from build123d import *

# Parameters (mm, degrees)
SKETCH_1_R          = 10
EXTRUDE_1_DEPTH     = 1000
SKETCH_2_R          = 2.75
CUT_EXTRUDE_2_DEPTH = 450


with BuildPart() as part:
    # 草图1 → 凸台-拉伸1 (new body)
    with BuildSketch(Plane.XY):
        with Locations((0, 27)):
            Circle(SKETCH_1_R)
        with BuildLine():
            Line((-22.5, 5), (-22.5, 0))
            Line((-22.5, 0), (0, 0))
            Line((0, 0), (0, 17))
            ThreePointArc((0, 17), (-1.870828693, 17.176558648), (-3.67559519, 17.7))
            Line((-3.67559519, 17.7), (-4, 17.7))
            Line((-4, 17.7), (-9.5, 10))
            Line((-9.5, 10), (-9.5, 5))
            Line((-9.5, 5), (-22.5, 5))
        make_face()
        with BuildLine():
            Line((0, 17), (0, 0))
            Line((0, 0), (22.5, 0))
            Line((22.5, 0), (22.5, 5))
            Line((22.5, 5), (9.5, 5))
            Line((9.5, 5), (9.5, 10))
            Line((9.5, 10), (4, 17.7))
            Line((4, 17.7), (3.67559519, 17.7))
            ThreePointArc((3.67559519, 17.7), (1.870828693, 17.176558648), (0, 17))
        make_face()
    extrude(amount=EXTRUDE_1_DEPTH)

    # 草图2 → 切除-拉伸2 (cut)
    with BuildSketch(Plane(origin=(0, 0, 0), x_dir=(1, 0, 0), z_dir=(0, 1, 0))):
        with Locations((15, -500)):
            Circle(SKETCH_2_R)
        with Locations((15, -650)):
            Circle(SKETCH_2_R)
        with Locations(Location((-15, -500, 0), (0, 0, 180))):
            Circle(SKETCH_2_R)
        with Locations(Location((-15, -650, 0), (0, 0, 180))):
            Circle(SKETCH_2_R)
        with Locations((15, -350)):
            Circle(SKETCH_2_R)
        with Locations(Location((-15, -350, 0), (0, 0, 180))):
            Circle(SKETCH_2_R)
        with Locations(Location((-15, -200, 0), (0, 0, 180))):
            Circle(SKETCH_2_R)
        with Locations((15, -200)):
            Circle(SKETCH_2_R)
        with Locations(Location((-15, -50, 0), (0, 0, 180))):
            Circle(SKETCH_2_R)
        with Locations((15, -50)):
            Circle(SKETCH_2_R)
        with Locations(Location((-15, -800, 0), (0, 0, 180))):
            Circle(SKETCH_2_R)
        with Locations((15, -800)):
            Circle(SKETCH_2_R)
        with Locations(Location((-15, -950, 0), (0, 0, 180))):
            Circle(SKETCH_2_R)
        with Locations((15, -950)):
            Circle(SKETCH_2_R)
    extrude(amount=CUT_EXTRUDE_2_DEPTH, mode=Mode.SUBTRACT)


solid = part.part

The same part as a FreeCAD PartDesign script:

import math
import FreeCAD as App
import Part
import Sketcher

V = App.Vector
Q = App.Units.Quantity

doc = App.newDocument("Part")
params = doc.addObject("Spreadsheet::Sheet", "Params")
for row, (alias, value) in enumerate([
    ("sketch1_radius", "10 mm"),
    ("sketch1_width", "13 mm"),
    ("sketch1_width2", "45 mm"),
    ("sketch1_height", "5 mm"),
    ("pad1_length", "1000 mm"),
    ("sketch2_diameter", "5.5 mm"),
    ("pocket1_length", "450 mm"),
], start=1):
    params.set(f"A{row}", alias)
    params.set(f"B{row}", "=" + value)
    params.setAlias(f"B{row}", alias)

body = doc.addObject("PartDesign::Body", "Body")

# Sketch on XY plane
sketch1 = body.newObject("Sketcher::SketchObject", "Sketch")
sketch1.AttachmentSupport = (doc.getObject("XY_Plane"), [""])
sketch1.MapMode = "FlatFace"
sketch1.addGeometry(Part.LineSegment(V(-3.675595, 17.7, 0), V(-4, 17.7, 0)), False)
sketch1.addGeometry(Part.LineSegment(V(-4, 17.7, 0), V(-9.5, 10, 0)), False)
sketch1.addGeometry(Part.LineSegment(V(-9.5, 10, 0), V(-9.5, 5, 0)), False)
sketch1.addGeometry(Part.LineSegment(V(-9.5, 5, 0), V(-22.5, 5, 0)), False)
sketch1.addGeometry(Part.LineSegment(V(-22.5, 5, 0), V(-22.5, 0, 0)), False)
sketch1.addGeometry(Part.LineSegment(V(-22.5, 0, 0), V(22.5, 0, 0)), False)
sketch1.addGeometry(Part.LineSegment(V(22.5, 0, 0), V(22.5, 5, 0)), False)
sketch1.addGeometry(Part.LineSegment(V(22.5, 5, 0), V(9.5, 5, 0)), False)
sketch1.addGeometry(Part.LineSegment(V(9.5, 5, 0), V(9.5, 10, 0)), False)
sketch1.addGeometry(Part.LineSegment(V(9.5, 10, 0), V(4, 17.7, 0)), False)
sketch1.addGeometry(Part.LineSegment(V(4, 17.7, 0), V(3.675595, 17.7, 0)), False)
sketch1.addGeometry(Part.ArcOfCircle(Part.Circle(V(0, 27, 0), V(0, 0, 1), 10), math.radians(-68.434815), math.radians(248.434815)), False)
sketch1.addConstraint(Sketcher.Constraint("Coincident", 0, 2, 1, 1))
sketch1.addConstraint(Sketcher.Constraint("Coincident", 1, 2, 2, 1))
sketch1.addConstraint(Sketcher.Constraint("Coincident", 2, 2, 3, 1))
sketch1.addConstraint(Sketcher.Constraint("Coincident", 3, 2, 4, 1))
sketch1.addConstraint(Sketcher.Constraint("Coincident", 4, 2, 5, 1))
sketch1.addConstraint(Sketcher.Constraint("Coincident", 5, 2, 6, 1))
sketch1.addConstraint(Sketcher.Constraint("Coincident", 6, 2, 7, 1))
sketch1.addConstraint(Sketcher.Constraint("Coincident", 7, 2, 8, 1))
sketch1.addConstraint(Sketcher.Constraint("Coincident", 8, 2, 9, 1))
sketch1.addConstraint(Sketcher.Constraint("Coincident", 9, 2, 10, 1))
sketch1.addConstraint(Sketcher.Constraint("Coincident", 10, 2, 11, 1))
sketch1.addConstraint(Sketcher.Constraint("Coincident", 11, 2, 0, 1))
sketch1.addConstraint(Sketcher.Constraint("Horizontal", 0))
sketch1.addConstraint(Sketcher.Constraint("Vertical", 2))
sketch1.addConstraint(Sketcher.Constraint("Horizontal", 3))
sketch1.addConstraint(Sketcher.Constraint("Vertical", 4))
sketch1.addConstraint(Sketcher.Constraint("Horizontal", 5))
sketch1.addConstraint(Sketcher.Constraint("Vertical", 6))
sketch1.addConstraint(Sketcher.Constraint("Horizontal", 7))
sketch1.addConstraint(Sketcher.Constraint("Vertical", 8))
sketch1.addConstraint(Sketcher.Constraint("Horizontal", 10))
sketch1.addConstraint(Sketcher.Constraint("Symmetric", 4, 2, 5, 2, -1, 1))
sketch1.addConstraint(Sketcher.Constraint("Symmetric", 2, 2, 7, 2, -2))
sketch1.addConstraint(Sketcher.Constraint("Symmetric", 0, 2, 9, 2, -2))
sketch1.addConstraint(Sketcher.Constraint("PointOnObject", 11, 3, -2))
sketch1.addConstraint(Sketcher.Constraint("Horizontal", 1, 2, 8, 2))
sketch1.addConstraint(Sketcher.Constraint("Equal", 2, 4))
sketch1.addConstraint(Sketcher.Constraint("Radius", 11, Q("10 mm")))
sketch1.addConstraint(Sketcher.Constraint("DistanceX", 3, 2, 3, 1, Q("13 mm")))
sketch1.addConstraint(Sketcher.Constraint("DistanceX", 5, 1, 5, 2, Q("45 mm")))
sketch1.addConstraint(Sketcher.Constraint("DistanceY", 2, 2, 2, 1, Q("5 mm")))
sketch1.addConstraint(Sketcher.Constraint("DistanceY", -1, 1, 11, 3, Q("27 mm")))
sketch1.addConstraint(Sketcher.Constraint("DistanceX", 0, 2, -1, 1, Q("4 mm")))
sketch1.addConstraint(Sketcher.Constraint("DistanceY", -1, 1, 0, 2, Q("17.7 mm")))
sketch1.setExpression("Constraints[27]", "Params.sketch1_radius")
sketch1.setExpression("Constraints[28]", "Params.sketch1_width")
sketch1.setExpression("Constraints[29]", "Params.sketch1_width2")
sketch1.setExpression("Constraints[30]", "Params.sketch1_height")
pad1 = body.newObject("PartDesign::Pad", "Pad")
pad1.Profile = sketch1
pad1.setExpression("Length", "Params.pad1_length")

# Sketch on XZ plane
sketch2 = body.newObject("Sketcher::SketchObject", "Sketch001")
sketch2.AttachmentSupport = (doc.getObject("XZ_Plane"), [""])
sketch2.MapMode = "FlatFace"
sketch2.addGeometry(Part.Circle(V(15, 500, 0), V(0, 0, 1), 2.75), False)
sketch2.addGeometry(Part.Circle(V(15, 650, 0), V(0, 0, 1), 2.75), False)
sketch2.addGeometry(Part.Circle(V(-15, 500, 0), V(0, 0, 1), 2.75), False)
sketch2.addGeometry(Part.Circle(V(-15, 650, 0), V(0, 0, 1), 2.75), False)
sketch2.addGeometry(Part.Circle(V(15, 350, 0), V(0, 0, 1), 2.75), False)
sketch2.addGeometry(Part.Circle(V(-15, 350, 0), V(0, 0, 1), 2.75), False)
sketch2.addGeometry(Part.Circle(V(-15, 200, 0), V(0, 0, 1), 2.75), False)
sketch2.addGeometry(Part.Circle(V(15, 200, 0), V(0, 0, 1), 2.75), False)
sketch2.addGeometry(Part.Circle(V(-15, 50, 0), V(0, 0, 1), 2.75), False)
sketch2.addGeometry(Part.Circle(V(15, 50, 0), V(0, 0, 1), 2.75), False)
sketch2.addGeometry(Part.Circle(V(-15, 800, 0), V(0, 0, 1), 2.75), False)
sketch2.addGeometry(Part.Circle(V(15, 800, 0), V(0, 0, 1), 2.75), False)
sketch2.addGeometry(Part.Circle(V(-15, 950, 0), V(0, 0, 1), 2.75), False)
sketch2.addGeometry(Part.Circle(V(15, 950, 0), V(0, 0, 1), 2.75), False)
sketch2.addConstraint(Sketcher.Constraint("Equal", 0, 1))
sketch2.addConstraint(Sketcher.Constraint("Equal", 1, 2))
sketch2.addConstraint(Sketcher.Constraint("Equal", 2, 3))
sketch2.addConstraint(Sketcher.Constraint("Equal", 3, 4))
sketch2.addConstraint(Sketcher.Constraint("Equal", 4, 5))
sketch2.addConstraint(Sketcher.Constraint("Equal", 5, 6))
sketch2.addConstraint(Sketcher.Constraint("Equal", 6, 7))
sketch2.addConstraint(Sketcher.Constraint("Equal", 7, 8))
sketch2.addConstraint(Sketcher.Constraint("Equal", 8, 9))
sketch2.addConstraint(Sketcher.Constraint("Equal", 9, 10))
sketch2.addConstraint(Sketcher.Constraint("Equal", 10, 11))
sketch2.addConstraint(Sketcher.Constraint("Equal", 11, 12))
sketch2.addConstraint(Sketcher.Constraint("Equal", 12, 13))
sketch2.addConstraint(Sketcher.Constraint("Symmetric", 0, 3, 2, 3, -2))
sketch2.addConstraint(Sketcher.Constraint("Symmetric", 1, 3, 3, 3, -2))
sketch2.addConstraint(Sketcher.Constraint("Symmetric", 4, 3, 5, 3, -2))
sketch2.addConstraint(Sketcher.Constraint("Symmetric", 6, 3, 7, 3, -2))
sketch2.addConstraint(Sketcher.Constraint("Symmetric", 8, 3, 9, 3, -2))
sketch2.addConstraint(Sketcher.Constraint("Symmetric", 10, 3, 11, 3, -2))
sketch2.addConstraint(Sketcher.Constraint("Symmetric", 12, 3, 13, 3, -2))
sketch2.addConstraint(Sketcher.Constraint("Vertical", 0, 3, 1, 3))
sketch2.addConstraint(Sketcher.Constraint("Vertical", 1, 3, 4, 3))
sketch2.addConstraint(Sketcher.Constraint("Vertical", 5, 3, 6, 3))
sketch2.addConstraint(Sketcher.Constraint("Vertical", 6, 3, 8, 3))
sketch2.addConstraint(Sketcher.Constraint("Vertical", 8, 3, 10, 3))
sketch2.addConstraint(Sketcher.Constraint("Vertical", 10, 3, 12, 3))
sketch2.addConstraint(Sketcher.Constraint("Diameter", 0, Q("5.5 mm")))
sketch2.addConstraint(Sketcher.Constraint("DistanceX", -1, 1, 0, 3, Q("15 mm")))
sketch2.addConstraint(Sketcher.Constraint("DistanceY", -1, 1, 0, 3, Q("500 mm")))
sketch2.addConstraint(Sketcher.Constraint("DistanceY", -1, 1, 1, 3, Q("650 mm")))
sketch2.addConstraint(Sketcher.Constraint("DistanceY", -1, 1, 4, 3, Q("350 mm")))
sketch2.addConstraint(Sketcher.Constraint("DistanceY", -1, 1, 6, 3, Q("200 mm")))
sketch2.addConstraint(Sketcher.Constraint("DistanceY", -1, 1, 8, 3, Q("50 mm")))
sketch2.addConstraint(Sketcher.Constraint("DistanceY", -1, 1, 10, 3, Q("800 mm")))
sketch2.addConstraint(Sketcher.Constraint("DistanceY", -1, 1, 12, 3, Q("950 mm")))
sketch2.setExpression("Constraints[26]", "Params.sketch2_diameter")
pocket1 = body.newObject("PartDesign::Pocket", "Pocket")
pocket1.Profile = sketch2
pocket1.setExpression("Length", "Params.pocket1_length")

doc.recompute()
